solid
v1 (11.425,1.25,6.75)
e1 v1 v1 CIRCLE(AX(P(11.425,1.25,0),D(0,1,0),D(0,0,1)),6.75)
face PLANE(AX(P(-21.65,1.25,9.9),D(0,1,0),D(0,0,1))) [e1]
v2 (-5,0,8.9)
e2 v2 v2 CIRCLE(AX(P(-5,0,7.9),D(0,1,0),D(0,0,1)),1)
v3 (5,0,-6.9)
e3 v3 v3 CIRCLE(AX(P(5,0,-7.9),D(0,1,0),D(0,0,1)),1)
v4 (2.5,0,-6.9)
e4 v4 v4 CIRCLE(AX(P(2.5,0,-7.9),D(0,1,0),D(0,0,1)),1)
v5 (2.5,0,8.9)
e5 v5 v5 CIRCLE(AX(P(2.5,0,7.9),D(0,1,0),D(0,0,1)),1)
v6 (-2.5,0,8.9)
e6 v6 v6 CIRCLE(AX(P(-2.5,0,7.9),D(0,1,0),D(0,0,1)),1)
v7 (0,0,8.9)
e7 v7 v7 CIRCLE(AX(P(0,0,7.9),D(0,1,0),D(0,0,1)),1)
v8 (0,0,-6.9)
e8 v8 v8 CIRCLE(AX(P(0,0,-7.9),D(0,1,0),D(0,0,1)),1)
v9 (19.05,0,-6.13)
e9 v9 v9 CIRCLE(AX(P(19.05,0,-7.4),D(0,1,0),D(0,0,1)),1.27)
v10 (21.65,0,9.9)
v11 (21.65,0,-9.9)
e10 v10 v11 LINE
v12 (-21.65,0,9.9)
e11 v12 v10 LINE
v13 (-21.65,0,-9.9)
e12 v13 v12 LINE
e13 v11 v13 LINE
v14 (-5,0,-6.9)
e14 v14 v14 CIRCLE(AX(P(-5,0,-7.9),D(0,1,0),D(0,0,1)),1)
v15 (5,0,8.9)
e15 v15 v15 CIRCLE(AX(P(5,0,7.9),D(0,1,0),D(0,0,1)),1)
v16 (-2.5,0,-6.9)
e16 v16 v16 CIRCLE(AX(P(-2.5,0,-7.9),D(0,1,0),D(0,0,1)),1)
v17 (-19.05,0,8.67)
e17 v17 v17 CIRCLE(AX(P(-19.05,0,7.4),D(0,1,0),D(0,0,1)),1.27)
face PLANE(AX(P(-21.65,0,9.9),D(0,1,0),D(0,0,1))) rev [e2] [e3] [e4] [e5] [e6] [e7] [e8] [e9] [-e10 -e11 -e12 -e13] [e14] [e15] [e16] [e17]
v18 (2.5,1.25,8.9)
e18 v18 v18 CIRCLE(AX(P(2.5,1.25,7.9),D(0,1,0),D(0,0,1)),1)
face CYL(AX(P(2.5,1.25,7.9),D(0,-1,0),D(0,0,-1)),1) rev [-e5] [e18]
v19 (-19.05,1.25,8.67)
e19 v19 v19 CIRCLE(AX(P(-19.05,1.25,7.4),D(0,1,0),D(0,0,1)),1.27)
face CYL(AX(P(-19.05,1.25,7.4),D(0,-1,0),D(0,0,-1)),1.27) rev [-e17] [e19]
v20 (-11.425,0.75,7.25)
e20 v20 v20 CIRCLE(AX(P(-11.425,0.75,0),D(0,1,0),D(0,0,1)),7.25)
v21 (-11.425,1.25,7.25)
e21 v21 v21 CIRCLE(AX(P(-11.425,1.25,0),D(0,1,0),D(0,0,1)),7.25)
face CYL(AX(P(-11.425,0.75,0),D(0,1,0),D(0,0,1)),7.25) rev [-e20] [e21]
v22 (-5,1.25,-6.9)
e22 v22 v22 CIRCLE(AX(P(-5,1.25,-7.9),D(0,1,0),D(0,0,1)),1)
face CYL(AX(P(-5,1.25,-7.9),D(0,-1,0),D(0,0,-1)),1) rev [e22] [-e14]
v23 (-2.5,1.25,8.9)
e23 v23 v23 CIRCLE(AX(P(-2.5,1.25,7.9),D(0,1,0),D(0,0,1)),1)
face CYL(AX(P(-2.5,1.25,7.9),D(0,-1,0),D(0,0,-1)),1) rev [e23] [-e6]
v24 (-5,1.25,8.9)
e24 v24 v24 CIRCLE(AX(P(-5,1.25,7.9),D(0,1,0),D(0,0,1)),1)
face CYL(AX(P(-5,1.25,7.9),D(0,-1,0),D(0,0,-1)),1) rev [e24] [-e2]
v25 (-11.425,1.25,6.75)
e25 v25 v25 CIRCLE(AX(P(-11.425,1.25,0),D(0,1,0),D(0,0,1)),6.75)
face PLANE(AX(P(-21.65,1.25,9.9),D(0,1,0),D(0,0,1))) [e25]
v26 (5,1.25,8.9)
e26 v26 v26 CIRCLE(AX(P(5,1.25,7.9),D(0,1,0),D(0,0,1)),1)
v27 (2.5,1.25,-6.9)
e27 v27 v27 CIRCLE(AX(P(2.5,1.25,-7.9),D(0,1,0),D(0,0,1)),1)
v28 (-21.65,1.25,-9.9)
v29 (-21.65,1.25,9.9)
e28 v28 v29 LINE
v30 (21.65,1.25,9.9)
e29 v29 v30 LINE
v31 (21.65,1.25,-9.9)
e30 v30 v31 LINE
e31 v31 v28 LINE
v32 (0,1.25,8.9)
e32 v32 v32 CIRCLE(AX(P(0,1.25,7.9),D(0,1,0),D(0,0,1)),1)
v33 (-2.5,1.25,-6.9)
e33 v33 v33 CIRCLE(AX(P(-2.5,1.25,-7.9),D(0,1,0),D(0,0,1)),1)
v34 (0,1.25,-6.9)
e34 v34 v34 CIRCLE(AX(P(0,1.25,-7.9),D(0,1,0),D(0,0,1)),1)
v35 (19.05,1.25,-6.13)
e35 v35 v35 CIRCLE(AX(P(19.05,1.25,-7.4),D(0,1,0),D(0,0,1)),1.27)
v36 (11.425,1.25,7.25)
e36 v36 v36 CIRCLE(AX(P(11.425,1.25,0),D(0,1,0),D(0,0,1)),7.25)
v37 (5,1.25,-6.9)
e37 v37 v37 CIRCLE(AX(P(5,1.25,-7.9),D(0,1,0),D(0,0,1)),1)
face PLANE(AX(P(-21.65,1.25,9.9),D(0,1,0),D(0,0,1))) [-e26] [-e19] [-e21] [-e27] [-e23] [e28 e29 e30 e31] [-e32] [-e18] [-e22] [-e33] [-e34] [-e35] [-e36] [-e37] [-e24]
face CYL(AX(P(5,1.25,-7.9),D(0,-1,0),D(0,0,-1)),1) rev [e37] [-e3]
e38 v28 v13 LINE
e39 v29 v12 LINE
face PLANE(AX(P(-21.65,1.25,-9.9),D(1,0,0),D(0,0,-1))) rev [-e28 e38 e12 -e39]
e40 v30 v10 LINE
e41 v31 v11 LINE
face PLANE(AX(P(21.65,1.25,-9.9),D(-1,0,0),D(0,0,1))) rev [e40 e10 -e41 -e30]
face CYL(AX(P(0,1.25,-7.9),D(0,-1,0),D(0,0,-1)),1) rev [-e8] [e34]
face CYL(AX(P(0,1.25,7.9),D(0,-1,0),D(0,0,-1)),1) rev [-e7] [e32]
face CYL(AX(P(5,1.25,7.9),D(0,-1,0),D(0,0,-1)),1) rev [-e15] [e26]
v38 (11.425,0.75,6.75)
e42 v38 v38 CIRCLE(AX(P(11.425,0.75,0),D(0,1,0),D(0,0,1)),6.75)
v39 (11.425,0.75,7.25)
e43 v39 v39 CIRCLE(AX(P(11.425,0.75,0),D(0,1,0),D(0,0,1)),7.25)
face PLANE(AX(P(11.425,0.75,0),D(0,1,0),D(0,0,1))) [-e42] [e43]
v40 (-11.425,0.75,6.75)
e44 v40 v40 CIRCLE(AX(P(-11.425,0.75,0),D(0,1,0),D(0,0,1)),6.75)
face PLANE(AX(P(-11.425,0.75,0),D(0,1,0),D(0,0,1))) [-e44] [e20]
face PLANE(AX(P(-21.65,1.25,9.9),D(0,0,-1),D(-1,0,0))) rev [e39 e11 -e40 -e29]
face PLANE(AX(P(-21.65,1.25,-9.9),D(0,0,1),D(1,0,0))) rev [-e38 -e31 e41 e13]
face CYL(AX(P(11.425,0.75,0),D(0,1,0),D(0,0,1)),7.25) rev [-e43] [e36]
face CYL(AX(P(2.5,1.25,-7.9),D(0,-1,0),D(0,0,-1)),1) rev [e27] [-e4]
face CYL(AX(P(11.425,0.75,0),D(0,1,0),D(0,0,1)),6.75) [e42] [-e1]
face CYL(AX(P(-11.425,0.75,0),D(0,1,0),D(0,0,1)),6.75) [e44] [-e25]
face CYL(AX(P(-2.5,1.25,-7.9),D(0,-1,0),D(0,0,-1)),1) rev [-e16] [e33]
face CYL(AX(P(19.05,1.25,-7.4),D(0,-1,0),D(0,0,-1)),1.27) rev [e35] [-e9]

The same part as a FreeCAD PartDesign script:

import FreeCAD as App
import Part
import Sketcher

V = App.Vector


def add_polygon(sketch, points):
    """Adds a closed chain of lines whose ends are joined by coincident constraints."""
    first, n = sketch.GeometryCount, len(points)
    for a, b in zip(points, points[1:] + points[:1]):
        sketch.addGeometry(Part.LineSegment(App.Vector(*a, 0), App.Vector(*b, 0)), False)
    for i in range(n):
        sketch.addConstraint(Sketcher.Constraint("Coincident", first + i, 2, first + (i + 1) % n, 1))

doc = App.newDocument("Part")
params = doc.addObject("Spreadsheet::Sheet", "Params")
for row, (alias, value) in enumerate([
    ("sketch1_diameter", "2 mm"),
    ("sketch1_diameter2", "2.54 mm"),
    ("sketch1_width", "43.3 mm"),
    ("sketch1_height", "19.8 mm"),
    ("pad1_length", "1.25 mm"),
    ("sketch2_diameter", "14.5 mm"),
    ("sketch2_diameter2", "13.5 mm"),
    ("pocket1_length", "0.5 mm"),
], start=1):
    params.set(f"A{row}", alias)
    params.set(f"B{row}", "=" + value)
    params.setAlias(f"B{row}", alias)

body = doc.addObject("PartDesign::Body", "Body")

# Sketch on XZ plane
sketch1 = body.newObject("Sketcher::SketchObject", "Sketch")
sketch1.AttachmentSupport = (doc.getObject("XZ_Plane"), [""])
sketch1.MapMode = "FlatFace"
add_polygon(sketch1, [(-21.6, -9.9), (-21.6, 9.9), (21.6, 9.9), (21.6, -9.9)])  # lines 0-3
sketch1.addGeometry(Part.Circle(V(-19.1, 7.4, 0), V(0, 0, 1), 1.3), False)  # 4
sketch1.addGeometry(Part.Circle(V(-5, 7.9, 0), V(0, 0, 1), 1), False)  # 5
sketch1.addGeometry(Part.Circle(V(-2.5, 7.9, 0), V(0, 0, 1), 1), False)  # 6
sketch1.addGeometry(Part.Circle(V(0, 7.9, 0), V(0, 0, 1), 1), False)  # 7
sketch1.addGeometry(Part.Circle(V(2.5, 7.9, 0), V(0, 0, 1), 1), False)  # 8
sketch1.addGeometry(Part.Circle(V(5, 7.9, 0), V(0, 0, 1), 1), False)  # 9
sketch1.addGeometry(Part.Circle(V(-5, -7.9, 0), V(0, 0, 1), 1), False)  # 10
sketch1.addGeometry(Part.Circle(V(-2.5, -7.9, 0), V(0, 0, 1), 1), False)  # 11
sketch1.addGeometry(Part.Circle(V(0, -7.9, 0), V(0, 0, 1), 1), False)  # 12
sketch1.addGeometry(Part.Circle(V(2.5, -7.9, 0), V(0, 0, 1), 1), False)  # 13
sketch1.addGeometry(Part.Circle(V(5, -7.9, 0), V(0, 0, 1), 1), False)  # 14
sketch1.addGeometry(Part.Circle(V(19.1, -7.4, 0), V(0, 0, 1), 1.3), False)  # 15
sketch1.addConstraint(Sketcher.Constraint("Vertical", 0))
sketch1.addConstraint(Sketcher.Constraint("Horizontal", 1))
sketch1.addConstraint(Sketcher.Constraint("Vertical", 2))
sketch1.addConstraint(Sketcher.Constraint("Horizontal", 3))
sketch1.addConstraint(Sketcher.Constraint("Equal", 5, 6))
sketch1.addConstraint(Sketcher.Constraint("Equal", 6, 7))
sketch1.addConstraint(Sketcher.Constraint("Equal", 7, 8))
sketch1.addConstraint(Sketcher.Constraint("Equal", 8, 9))
sketch1.addConstraint(Sketcher.Constraint("Equal", 9, 10))
sketch1.addConstraint(Sketcher.Constraint("Equal", 10, 11))
sketch1.addConstraint(Sketcher.Constraint("Equal", 11, 12))
sketch1.addConstraint(Sketcher.Constraint("Equal", 12, 13))
sketch1.addConstraint(Sketcher.Constraint("Equal", 13, 14))
sketch1.addConstraint(Sketcher.Constraint("Equal", 4, 15))
sketch1.addConstraint(Sketcher.Constraint("Symmetric", 9, 3, 10, 3, -1, 1))
sketch1.addConstraint(Sketcher.Constraint("Symmetric", 8, 3, 11, 3, -1, 1))
sketch1.addConstraint(Sketcher.Constraint("Symmetric", 7, 3, 12, 3, -1, 1))
sketch1.addConstraint(Sketcher.Constraint("Symmetric", 6, 3, 13, 3, -1, 1))
sketch1.addConstraint(Sketcher.Constraint("Symmetric", 5, 3, 14, 3, -1, 1))
sketch1.addConstraint(Sketcher.Constraint("Symmetric", 4, 3, 15, 3, -1, 1))
sketch1.addConstraint(Sketcher.Constraint("Symmetric", 0, 2, 2, 2, -1, 1))
sketch1.addConstraint(Sketcher.Constraint("Symmetric", 6, 3, 8, 3, -2))
sketch1.addConstraint(Sketcher.Constraint("Symmetric", 5, 3, 9, 3, -2))
sketch1.addConstraint(Sketcher.Constraint("PointOnObject", 7, 3, -2))
sketch1.addConstraint(Sketcher.Constraint("Horizontal", 5, 3, 6, 3))
sketch1.addConstraint(Sketcher.Constraint("Horizontal", 6, 3, 7, 3))
sketch1.addConstraint(Sketcher.Constraint("Diameter", 5, 2.0))
sketch1.addConstraint(Sketcher.Constraint("Diameter", 4, 2.54))
sketch1.addConstraint(Sketcher.Constraint("DistanceX", 1, 1, 1, 2, 43.3))
sketch1.addConstraint(Sketcher.Constraint("DistanceY", 0, 1, 0, 2, 19.8))
sketch1.addConstraint(Sketcher.Constraint("DistanceX", 5, 3, -1, 1, 5.0))
sketch1.addConstraint(Sketcher.Constraint("DistanceX", 6, 3, 8, 3, 5.0))
sketch1.addConstraint(Sketcher.Constraint("DistanceY", 5, 3, 0, 2, 2.0))
sketch1.addConstraint(Sketcher.Constraint("DistanceY", -1, 1, 4, 3, 7.4))
sketch1.addConstraint(Sketcher.Constraint("DistanceX", 0, 2, 4, 3, 2.6))
sketch1.setExpression("Constraints[30]", "Params.sketch1_diameter")
sketch1.setExpression("Constraints[31]", "Params.sketch1_diameter2")
sketch1.setExpression("Constraints[32]", "Params.sketch1_width")
sketch1.setExpression("Constraints[33]", "Params.sketch1_height")
pad1 = body.newObject("PartDesign::Pad", "Pad")
pad1.Profile = sketch1
pad1.setExpression("Length", "Params.pad1_length")
pad1.Reversed = True

# Sketch on XZ plane
sketch2 = body.newObject("Sketcher::SketchObject", "Sketch001")
sketch2.AttachmentSupport = (doc.getObject("XZ_Plane"), [""])
sketch2.MapMode = "FlatFace"
sketch2.AttachmentOffset = App.Placement(V(0, 0, -1.25), App.Rotation())
sketch2.addGeometry(Part.Circle(V(-11, 0, 0), V(0, 0, 1), 7), False)
sketch2.addGeometry(Part.Circle(V(-11, 0, 0), V(0, 0, 1), 7), False)
sketch2.addGeometry(Part.Circle(V(11, 0, 0), V(0, 0, 1), 7), False)
sketch2.addGeometry(Part.Circle(V(11, 0, 0), V(0, 0, 1), 7), False)
sketch2.addConstraint(Sketcher.Constraint("Coincident", 1, 3, 0, 3))
sketch2.addConstraint(Sketcher.Constraint("Coincident", 3, 3, 2, 3))
sketch2.addConstraint(Sketcher.Constraint("Equal", 0, 2))
sketch2.addConstraint(Sketcher.Constraint("Equal", 1, 3))
sketch2.addConstraint(Sketcher.Constraint("Symmetric", 0, 3, 2, 3, -1, 1))
sketch2.addConstraint(Sketcher.Constraint("PointOnObject", 0, 3, -1))
sketch2.addConstraint(Sketcher.Constraint("Diameter", 0, 14.5))
sketch2.addConstraint(Sketcher.Constraint("Diameter", 1, 13.5))
sketch2.addConstraint(Sketcher.Constraint("DistanceX", 0, 3, 2, 3, 22.85))
sketch2.setExpression("Constraints[6]", "Params.sketch2_diameter")
sketch2.setExpression("Constraints[7]", "Params.sketch2_diameter2")
pocket1 = body.newObject("PartDesign::Pocket", "Pocket")
pocket1.Profile = sketch2
pocket1.setExpression("Length", "Params.pocket1_length")
pocket1.Reversed = True

doc.recompute()
